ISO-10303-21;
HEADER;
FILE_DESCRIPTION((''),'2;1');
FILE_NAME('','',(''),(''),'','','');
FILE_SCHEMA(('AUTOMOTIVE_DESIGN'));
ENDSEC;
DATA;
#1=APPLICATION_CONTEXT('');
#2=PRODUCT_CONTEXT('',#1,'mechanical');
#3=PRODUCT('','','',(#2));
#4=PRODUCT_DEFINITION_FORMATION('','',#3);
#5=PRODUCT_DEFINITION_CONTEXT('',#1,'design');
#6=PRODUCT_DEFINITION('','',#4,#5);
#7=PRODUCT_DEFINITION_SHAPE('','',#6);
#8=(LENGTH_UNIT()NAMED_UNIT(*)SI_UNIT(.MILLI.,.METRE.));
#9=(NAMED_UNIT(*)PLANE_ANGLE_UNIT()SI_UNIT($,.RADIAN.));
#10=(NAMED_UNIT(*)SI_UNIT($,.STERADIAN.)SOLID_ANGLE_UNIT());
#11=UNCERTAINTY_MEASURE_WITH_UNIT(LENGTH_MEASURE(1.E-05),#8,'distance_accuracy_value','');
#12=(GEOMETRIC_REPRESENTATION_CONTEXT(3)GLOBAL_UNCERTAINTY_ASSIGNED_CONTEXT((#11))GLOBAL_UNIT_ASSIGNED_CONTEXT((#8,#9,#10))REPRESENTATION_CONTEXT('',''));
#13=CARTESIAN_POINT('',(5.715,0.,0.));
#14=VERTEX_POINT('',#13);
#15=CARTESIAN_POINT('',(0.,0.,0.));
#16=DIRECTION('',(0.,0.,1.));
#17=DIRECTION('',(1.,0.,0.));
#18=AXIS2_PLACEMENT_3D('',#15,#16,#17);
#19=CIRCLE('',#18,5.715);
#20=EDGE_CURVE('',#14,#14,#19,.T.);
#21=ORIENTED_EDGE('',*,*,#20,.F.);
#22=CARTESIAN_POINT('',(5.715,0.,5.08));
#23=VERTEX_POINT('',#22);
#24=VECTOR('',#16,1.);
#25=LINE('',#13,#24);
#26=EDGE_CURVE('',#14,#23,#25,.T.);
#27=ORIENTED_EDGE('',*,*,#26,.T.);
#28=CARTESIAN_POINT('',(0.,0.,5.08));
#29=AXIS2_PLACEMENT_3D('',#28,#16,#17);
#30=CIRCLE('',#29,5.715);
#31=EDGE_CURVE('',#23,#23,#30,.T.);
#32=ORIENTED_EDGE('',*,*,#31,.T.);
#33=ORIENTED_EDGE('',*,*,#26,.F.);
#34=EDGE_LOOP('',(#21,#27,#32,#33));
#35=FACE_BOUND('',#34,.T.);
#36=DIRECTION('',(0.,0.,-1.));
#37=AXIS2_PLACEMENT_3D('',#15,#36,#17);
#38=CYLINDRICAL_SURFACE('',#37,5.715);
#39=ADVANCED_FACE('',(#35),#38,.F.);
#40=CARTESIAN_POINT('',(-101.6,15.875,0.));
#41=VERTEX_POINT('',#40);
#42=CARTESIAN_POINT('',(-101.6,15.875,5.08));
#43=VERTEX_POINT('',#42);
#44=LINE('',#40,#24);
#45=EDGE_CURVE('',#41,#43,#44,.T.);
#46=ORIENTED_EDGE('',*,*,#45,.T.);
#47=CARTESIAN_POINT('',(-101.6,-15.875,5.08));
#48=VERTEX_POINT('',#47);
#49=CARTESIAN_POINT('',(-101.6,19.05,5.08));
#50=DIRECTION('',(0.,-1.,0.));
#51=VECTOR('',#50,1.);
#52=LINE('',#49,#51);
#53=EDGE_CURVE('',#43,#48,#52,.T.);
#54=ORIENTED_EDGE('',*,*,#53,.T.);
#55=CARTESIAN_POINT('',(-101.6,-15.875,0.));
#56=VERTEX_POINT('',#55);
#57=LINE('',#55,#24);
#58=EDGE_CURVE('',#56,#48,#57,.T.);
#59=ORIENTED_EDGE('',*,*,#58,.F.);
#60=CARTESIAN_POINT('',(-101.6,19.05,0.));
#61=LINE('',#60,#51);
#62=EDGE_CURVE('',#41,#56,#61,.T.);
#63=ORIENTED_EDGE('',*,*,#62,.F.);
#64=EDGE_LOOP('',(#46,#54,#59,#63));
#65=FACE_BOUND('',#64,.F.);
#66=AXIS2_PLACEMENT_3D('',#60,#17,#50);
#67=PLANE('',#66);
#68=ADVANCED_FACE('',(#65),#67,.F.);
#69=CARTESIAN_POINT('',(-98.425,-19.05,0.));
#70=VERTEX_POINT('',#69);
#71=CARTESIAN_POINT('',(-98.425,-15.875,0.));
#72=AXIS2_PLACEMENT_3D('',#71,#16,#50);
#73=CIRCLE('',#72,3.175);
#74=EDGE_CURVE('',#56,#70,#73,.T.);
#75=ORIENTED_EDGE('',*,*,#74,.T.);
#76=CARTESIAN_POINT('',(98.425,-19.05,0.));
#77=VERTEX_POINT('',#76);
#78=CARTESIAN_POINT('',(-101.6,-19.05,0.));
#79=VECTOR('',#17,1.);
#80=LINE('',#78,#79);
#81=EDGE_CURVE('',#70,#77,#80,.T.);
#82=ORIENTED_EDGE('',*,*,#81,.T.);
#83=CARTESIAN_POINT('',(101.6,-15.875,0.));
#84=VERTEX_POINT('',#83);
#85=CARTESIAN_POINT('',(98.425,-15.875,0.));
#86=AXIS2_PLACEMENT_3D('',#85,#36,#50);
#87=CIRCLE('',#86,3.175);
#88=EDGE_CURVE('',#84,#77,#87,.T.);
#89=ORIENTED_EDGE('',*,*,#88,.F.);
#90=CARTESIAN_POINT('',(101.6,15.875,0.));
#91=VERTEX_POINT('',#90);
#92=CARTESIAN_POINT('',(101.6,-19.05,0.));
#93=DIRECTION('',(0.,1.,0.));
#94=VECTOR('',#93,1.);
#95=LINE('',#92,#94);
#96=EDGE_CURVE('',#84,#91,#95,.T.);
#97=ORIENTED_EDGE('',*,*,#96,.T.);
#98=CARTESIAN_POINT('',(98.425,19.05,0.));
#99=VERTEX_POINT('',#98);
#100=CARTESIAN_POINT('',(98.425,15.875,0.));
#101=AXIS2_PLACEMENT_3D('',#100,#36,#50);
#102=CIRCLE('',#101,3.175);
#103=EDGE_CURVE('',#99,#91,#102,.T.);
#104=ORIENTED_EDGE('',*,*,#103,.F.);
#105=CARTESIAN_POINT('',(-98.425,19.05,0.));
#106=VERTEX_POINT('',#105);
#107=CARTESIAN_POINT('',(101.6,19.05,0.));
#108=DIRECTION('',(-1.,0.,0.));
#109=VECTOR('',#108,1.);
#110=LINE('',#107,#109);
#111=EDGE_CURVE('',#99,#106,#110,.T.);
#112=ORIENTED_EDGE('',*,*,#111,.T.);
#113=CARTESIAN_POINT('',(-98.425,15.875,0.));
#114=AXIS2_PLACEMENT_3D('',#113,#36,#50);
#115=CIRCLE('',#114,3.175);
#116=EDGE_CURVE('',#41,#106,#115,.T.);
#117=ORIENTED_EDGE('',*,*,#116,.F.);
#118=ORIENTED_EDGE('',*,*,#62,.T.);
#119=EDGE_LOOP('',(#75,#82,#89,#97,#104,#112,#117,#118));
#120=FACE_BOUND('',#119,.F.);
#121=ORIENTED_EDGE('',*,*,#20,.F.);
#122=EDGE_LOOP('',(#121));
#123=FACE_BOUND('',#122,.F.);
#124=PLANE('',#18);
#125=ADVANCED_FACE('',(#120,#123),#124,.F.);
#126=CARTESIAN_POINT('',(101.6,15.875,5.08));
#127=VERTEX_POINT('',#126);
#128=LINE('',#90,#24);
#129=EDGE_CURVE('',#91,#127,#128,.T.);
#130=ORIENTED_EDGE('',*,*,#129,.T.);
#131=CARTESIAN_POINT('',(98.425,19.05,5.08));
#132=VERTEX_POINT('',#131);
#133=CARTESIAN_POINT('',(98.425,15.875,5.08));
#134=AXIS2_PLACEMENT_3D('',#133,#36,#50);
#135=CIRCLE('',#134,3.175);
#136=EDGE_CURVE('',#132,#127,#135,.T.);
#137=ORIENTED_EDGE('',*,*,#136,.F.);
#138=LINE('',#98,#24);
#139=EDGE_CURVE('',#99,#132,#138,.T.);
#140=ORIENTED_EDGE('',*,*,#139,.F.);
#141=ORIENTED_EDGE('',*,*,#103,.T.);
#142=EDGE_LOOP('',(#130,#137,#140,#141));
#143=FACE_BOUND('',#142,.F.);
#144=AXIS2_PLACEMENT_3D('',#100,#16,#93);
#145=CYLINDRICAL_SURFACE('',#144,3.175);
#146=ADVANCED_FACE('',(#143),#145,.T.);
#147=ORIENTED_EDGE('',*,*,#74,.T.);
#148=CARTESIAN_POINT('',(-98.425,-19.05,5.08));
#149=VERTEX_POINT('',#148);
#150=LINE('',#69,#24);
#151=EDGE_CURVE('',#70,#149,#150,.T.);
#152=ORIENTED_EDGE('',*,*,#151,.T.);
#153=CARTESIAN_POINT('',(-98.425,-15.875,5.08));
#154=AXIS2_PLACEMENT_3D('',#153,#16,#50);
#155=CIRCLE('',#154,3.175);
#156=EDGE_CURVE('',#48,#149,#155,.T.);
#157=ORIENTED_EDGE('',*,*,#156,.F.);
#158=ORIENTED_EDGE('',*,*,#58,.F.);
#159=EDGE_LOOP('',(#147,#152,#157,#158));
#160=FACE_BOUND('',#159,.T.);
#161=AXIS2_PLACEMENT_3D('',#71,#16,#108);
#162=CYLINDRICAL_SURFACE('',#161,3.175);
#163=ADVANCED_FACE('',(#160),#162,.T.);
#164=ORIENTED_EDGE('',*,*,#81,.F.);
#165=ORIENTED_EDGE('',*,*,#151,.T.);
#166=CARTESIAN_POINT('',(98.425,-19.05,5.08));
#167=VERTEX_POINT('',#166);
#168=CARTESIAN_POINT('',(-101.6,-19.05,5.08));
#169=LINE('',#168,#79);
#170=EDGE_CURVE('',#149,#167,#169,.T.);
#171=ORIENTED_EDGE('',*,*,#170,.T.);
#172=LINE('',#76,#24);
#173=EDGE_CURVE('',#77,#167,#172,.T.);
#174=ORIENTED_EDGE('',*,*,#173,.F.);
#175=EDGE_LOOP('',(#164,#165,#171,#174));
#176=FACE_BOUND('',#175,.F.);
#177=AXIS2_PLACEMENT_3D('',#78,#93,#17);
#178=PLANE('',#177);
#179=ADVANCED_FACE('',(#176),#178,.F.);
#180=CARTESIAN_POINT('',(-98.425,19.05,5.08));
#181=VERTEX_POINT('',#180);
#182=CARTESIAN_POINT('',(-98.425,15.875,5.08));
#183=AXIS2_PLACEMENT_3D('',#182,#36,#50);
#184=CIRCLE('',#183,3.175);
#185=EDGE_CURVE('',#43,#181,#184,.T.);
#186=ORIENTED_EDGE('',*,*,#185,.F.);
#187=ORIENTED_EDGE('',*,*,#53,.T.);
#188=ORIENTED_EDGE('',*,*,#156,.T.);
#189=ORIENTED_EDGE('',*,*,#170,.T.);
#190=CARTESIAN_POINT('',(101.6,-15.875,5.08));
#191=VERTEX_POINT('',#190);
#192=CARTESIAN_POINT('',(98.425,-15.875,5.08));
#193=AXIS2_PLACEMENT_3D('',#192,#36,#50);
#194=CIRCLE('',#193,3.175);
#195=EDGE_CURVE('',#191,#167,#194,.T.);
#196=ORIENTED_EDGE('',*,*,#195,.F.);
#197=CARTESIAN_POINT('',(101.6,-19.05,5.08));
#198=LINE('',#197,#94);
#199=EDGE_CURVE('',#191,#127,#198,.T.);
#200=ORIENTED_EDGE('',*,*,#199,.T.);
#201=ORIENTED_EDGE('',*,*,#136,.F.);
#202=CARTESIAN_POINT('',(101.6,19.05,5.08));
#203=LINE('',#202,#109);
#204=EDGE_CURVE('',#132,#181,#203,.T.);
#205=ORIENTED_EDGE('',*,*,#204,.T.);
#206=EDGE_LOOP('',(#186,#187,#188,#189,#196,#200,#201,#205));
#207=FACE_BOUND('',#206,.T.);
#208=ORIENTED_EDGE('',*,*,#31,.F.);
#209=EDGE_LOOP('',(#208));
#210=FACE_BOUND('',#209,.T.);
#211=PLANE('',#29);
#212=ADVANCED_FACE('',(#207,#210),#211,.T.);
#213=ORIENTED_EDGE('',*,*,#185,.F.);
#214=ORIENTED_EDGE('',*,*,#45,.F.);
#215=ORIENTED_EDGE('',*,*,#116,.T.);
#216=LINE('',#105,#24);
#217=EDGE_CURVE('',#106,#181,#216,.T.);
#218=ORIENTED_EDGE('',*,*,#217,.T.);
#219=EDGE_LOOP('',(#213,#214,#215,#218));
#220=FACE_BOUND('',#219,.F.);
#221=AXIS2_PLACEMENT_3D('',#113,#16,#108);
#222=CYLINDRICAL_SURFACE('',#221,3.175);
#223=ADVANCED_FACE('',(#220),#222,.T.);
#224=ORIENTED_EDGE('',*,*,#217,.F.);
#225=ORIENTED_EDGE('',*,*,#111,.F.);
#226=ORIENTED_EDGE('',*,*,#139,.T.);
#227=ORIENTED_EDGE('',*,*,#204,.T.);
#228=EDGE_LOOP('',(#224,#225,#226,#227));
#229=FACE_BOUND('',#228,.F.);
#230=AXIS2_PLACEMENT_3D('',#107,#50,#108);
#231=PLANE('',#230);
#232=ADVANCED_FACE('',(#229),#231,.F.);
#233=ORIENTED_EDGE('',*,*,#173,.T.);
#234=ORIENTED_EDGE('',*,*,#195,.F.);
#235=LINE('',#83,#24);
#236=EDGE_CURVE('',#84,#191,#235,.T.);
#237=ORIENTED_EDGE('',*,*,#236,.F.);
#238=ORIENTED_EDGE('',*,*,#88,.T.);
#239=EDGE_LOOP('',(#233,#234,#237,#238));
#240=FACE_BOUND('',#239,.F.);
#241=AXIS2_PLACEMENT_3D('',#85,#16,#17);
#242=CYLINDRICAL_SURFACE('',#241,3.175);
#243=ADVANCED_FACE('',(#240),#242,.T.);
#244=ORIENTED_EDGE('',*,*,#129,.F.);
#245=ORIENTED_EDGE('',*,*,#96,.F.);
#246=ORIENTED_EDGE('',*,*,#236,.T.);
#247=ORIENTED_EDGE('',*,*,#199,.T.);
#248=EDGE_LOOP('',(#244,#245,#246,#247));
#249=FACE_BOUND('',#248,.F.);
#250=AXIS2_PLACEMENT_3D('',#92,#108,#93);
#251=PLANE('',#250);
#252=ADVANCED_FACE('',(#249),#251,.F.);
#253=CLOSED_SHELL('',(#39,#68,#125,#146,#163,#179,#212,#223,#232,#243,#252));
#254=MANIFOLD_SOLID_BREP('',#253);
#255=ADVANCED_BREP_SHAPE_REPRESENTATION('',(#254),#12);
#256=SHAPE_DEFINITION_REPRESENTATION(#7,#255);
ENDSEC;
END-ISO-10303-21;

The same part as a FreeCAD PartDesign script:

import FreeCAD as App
import Part
import Sketcher
from FreeCAD import Vector
Q = App.Units.Quantity


def edges_at(feature, points):
    """Names of the edges that pass closest to the given points."""
    edges = feature.Shape.Edges
    near = lambda p: min(range(len(edges)), key=lambda i: edges[i].distToShape(Part.Vertex(*p))[0])
    return sorted({f"Edge{near(p) + 1}" for p in points})

doc = App.newDocument("Part")
body = doc.addObject("PartDesign::Body", "Body")

sketch1 = body.newObject("Sketcher::SketchObject", "Sketch")
sketch1.AttachmentSupport = (doc.getObject("XY_Plane"), [""])
sketch1.MapMode = "FlatFace"
sketch1.addGeometry([
    Part.LineSegment(Vector(-102, 19, 0), Vector(-102, -19, 0)),
    Part.LineSegment(Vector(-102, -19, 0), Vector(102, -19, 0)),
    Part.LineSegment(Vector(102, -19, 0), Vector(102, 19, 0)),
    Part.LineSegment(Vector(102, 19, 0), Vector(-102, 19, 0)),
    Part.Circle(Vector(0, 0, 0), Vector(0, 0, 1), 6),
], False)
sketch1.addConstraint([
    Sketcher.Constraint("Coincident", 0, 2, 1, 1),
    Sketcher.Constraint("Coincident", 1, 2, 2, 1),
    Sketcher.Constraint("Coincident", 2, 2, 3, 1),
    Sketcher.Constraint("Coincident", 3, 2, 0, 1),
    Sketcher.Constraint("Vertical", 0),
    Sketcher.Constraint("Horizontal", 1),
    Sketcher.Constraint("Vertical", 2),
    Sketcher.Constraint("Horizontal", 3),
    Sketcher.Constraint("Coincident", 4, 3, -1, 1),
    Sketcher.Constraint("Symmetric", 0, 2, 2, 2, -1, 1),
    Sketcher.Constraint("Diameter", 4, Q("0.45 in")),
    Sketcher.Constraint("DistanceX", 1, 1, 1, 2, Q("8 in")),
    Sketcher.Constraint("DistanceY", 0, 2, 0, 1, Q("1.5 in")),
])
pad1 = body.newObject("PartDesign::Pad", "Pad")
pad1.Profile = sketch1
pad1.Length = Q("0.2 in")
doc.recompute()

fillet = body.newObject("PartDesign::Fillet", "Fillet")
fillet.Base = (pad1, edges_at(pad1, [
    (-101.6, 19.05, 2.54),
    (-101.6, -19.05, 2.54),
    (101.6, 19.05, 2.54),
    (101.6, -19.05, 2.54),
]))
fillet.Radius = Q("0.125 in")

doc.recompute()
